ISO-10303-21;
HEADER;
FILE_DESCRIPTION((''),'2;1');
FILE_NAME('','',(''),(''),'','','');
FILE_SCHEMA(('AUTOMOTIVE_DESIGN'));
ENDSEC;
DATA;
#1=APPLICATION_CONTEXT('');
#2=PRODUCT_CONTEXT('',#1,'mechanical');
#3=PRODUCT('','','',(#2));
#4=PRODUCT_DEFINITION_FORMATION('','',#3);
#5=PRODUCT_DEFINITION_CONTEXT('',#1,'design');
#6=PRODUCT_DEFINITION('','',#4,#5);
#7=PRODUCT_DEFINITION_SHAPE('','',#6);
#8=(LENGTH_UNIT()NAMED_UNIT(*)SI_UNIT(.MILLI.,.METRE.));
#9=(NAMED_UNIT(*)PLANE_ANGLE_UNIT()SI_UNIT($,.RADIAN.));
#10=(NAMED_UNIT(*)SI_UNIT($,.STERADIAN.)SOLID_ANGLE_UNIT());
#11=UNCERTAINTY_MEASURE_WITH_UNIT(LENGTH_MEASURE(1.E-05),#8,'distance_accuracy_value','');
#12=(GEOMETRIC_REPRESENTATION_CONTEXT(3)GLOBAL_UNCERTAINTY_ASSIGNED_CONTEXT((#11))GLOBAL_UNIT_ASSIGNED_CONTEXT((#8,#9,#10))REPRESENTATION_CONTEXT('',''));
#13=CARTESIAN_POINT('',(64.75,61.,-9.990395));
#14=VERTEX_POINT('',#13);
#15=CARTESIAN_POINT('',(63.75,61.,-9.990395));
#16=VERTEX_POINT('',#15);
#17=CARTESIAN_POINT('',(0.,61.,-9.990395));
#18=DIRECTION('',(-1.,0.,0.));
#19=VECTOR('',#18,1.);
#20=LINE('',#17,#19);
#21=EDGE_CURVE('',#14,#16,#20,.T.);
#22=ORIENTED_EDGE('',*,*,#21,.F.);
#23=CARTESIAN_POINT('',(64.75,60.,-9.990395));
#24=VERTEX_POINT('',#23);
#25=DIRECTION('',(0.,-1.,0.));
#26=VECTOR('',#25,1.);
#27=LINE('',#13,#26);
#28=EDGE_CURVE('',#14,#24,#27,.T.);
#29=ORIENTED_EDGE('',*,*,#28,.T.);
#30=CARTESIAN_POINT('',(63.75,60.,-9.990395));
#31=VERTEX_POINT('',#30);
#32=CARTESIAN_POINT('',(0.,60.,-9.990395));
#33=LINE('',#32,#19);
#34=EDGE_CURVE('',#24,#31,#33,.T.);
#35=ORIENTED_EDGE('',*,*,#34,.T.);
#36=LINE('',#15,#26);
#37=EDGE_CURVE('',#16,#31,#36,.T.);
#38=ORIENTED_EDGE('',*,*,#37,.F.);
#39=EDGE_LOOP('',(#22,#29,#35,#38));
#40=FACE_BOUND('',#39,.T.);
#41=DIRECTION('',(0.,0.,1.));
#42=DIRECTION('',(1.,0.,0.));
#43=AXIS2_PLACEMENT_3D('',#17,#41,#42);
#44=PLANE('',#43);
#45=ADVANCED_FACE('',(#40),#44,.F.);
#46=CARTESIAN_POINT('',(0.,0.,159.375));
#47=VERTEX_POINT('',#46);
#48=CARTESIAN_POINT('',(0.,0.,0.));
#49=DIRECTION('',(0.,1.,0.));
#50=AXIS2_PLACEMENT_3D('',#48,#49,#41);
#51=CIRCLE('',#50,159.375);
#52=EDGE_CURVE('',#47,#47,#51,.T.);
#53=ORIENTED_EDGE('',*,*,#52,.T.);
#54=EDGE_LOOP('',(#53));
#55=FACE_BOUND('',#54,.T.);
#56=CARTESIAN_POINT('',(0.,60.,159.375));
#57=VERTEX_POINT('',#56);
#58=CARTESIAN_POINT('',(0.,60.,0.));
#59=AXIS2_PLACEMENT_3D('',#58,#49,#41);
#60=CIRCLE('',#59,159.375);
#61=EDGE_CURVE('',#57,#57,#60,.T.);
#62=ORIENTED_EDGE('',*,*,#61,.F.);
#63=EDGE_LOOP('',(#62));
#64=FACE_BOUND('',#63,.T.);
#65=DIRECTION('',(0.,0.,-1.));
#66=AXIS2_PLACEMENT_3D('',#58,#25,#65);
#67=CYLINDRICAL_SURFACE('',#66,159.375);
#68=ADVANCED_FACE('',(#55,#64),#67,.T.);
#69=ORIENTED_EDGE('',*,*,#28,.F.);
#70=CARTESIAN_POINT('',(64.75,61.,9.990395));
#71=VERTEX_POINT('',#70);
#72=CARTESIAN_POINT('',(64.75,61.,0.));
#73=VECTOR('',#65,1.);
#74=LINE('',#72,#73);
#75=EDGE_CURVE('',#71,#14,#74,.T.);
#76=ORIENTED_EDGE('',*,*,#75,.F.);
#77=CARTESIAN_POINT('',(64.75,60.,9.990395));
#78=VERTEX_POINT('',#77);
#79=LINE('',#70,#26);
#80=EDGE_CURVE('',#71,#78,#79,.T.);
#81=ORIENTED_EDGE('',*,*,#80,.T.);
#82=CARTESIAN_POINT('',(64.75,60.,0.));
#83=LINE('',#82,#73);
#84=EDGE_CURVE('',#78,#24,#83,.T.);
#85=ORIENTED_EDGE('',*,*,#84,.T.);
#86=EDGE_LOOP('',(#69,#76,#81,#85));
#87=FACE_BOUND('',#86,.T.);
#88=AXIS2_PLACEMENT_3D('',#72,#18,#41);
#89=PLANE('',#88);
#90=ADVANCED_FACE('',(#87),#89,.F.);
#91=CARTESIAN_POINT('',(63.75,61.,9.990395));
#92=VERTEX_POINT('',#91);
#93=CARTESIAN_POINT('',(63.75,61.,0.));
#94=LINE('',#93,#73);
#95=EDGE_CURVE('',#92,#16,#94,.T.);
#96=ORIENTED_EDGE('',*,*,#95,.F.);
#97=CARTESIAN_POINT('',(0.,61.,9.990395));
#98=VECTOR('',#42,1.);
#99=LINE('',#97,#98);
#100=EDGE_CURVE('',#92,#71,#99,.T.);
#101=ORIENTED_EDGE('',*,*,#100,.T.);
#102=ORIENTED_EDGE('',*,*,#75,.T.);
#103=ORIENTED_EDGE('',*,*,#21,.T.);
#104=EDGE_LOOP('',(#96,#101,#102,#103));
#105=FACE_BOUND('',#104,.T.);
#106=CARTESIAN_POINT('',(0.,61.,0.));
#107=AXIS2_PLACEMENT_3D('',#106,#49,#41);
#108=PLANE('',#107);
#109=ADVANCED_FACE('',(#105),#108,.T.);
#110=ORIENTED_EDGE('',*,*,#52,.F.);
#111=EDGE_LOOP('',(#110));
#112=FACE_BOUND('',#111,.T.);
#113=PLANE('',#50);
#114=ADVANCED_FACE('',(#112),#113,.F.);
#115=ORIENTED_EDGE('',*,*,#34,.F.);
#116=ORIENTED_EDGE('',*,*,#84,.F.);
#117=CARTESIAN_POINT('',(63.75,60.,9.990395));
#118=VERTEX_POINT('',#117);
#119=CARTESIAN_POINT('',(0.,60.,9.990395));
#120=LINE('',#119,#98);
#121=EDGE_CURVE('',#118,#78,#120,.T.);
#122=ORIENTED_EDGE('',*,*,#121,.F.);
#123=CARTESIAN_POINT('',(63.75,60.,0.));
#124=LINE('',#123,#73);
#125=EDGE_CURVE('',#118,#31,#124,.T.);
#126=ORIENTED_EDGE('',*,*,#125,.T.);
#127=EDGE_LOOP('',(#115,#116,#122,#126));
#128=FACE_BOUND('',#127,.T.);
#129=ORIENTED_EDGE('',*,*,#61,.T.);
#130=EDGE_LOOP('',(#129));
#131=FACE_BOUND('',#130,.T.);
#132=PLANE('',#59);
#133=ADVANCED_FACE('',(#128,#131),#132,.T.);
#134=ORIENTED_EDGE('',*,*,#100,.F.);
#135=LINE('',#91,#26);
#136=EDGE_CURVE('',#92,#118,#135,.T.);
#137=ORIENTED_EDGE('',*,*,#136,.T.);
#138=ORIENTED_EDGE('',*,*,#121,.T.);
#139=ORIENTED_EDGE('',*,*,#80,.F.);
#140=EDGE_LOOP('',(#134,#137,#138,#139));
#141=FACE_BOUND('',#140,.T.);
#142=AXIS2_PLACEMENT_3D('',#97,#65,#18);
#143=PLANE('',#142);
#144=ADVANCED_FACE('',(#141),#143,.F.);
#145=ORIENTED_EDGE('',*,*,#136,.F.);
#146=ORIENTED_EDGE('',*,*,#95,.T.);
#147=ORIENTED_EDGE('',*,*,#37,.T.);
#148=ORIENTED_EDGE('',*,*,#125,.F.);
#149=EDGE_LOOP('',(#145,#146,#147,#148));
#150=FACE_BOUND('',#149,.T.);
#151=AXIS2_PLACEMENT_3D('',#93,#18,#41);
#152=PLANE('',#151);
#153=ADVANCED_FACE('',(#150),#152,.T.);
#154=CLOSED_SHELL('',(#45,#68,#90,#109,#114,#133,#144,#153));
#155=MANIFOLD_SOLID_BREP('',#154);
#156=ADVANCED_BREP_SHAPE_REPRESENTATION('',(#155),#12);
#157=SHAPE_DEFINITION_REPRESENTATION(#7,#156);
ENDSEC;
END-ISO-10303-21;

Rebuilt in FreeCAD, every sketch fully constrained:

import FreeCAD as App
import Part
import Sketcher
Q = App.Units.Quantity


def add_polygon(sketch, points):
    """Adds a closed chain of lines whose ends are joined by coincident constraints."""
    first, n = sketch.GeometryCount, len(points)
    for a, b in zip(points, points[1:] + points[:1]):
        sketch.addGeometry(Part.LineSegment(App.Vector(*a, 0), App.Vector(*b, 0)), False)
    for i in range(n):
        sketch.addConstraint(Sketcher.Constraint("Coincident", first + i, 2, first + (i + 1) % n, 1))

doc = App.newDocument("Part")
body = doc.addObject("PartDesign::Body", "Body")

sketch1 = body.newObject("Sketcher::SketchObject", "Sketch")
sketch1.AttachmentSupport = (doc.getObject("XZ_Plane"), [""])
sketch1.MapMode = "FlatFace"
sketch1.addGeometry(Part.Circle(App.Vector(0, 0, 0), App.Vector(0, 0, 1), 159), False)
sketch1.addConstraint([
    Sketcher.Constraint("Coincident", 0, 3, -1, 1),
    Sketcher.Constraint("Diameter", 0, Q("318.75 mm")),
])
pad1 = body.newObject("PartDesign::Pad", "Pad")
pad1.Profile = sketch1
pad1.Length = 60
pad1.Reversed = True

sketch2 = body.newObject("Sketcher::SketchObject", "Sketch001")
sketch2.AttachmentSupport = (doc.getObject("XZ_Plane"), [""])
sketch2.MapMode = "FlatFace"
sketch2.AttachmentOffset = App.Placement(App.Vector(0, 0, -60), App.Rotation())
add_polygon(sketch2, [(63.8, -10), (63.8, 10), (64.8, 10), (64.8, -10)])
sketch2.addConstraint([
    Sketcher.Constraint("Vertical", 0),
    Sketcher.Constraint("Horizontal", 1),
    Sketcher.Constraint("Vertical", 2),
    Sketcher.Constraint("Horizontal", 3),
    Sketcher.Constraint("DistanceX", 1, 1, 1, 2, Q("1 mm")),
    Sketcher.Constraint("DistanceX", -1, 1, 0, 2, Q("63.75 mm")),
    Sketcher.Constraint("DistanceY", 0, 1, 0, 2, Q("19.98079 mm")),
    Sketcher.Constraint("DistanceY", -1, 1, 0, 2, Q("9.990395 mm")),
])
pad2 = body.newObject("PartDesign::Pad", "Pad001")
pad2.Profile = sketch2
pad2.Length = 1
pad2.Reversed = True

doc.recompute()
